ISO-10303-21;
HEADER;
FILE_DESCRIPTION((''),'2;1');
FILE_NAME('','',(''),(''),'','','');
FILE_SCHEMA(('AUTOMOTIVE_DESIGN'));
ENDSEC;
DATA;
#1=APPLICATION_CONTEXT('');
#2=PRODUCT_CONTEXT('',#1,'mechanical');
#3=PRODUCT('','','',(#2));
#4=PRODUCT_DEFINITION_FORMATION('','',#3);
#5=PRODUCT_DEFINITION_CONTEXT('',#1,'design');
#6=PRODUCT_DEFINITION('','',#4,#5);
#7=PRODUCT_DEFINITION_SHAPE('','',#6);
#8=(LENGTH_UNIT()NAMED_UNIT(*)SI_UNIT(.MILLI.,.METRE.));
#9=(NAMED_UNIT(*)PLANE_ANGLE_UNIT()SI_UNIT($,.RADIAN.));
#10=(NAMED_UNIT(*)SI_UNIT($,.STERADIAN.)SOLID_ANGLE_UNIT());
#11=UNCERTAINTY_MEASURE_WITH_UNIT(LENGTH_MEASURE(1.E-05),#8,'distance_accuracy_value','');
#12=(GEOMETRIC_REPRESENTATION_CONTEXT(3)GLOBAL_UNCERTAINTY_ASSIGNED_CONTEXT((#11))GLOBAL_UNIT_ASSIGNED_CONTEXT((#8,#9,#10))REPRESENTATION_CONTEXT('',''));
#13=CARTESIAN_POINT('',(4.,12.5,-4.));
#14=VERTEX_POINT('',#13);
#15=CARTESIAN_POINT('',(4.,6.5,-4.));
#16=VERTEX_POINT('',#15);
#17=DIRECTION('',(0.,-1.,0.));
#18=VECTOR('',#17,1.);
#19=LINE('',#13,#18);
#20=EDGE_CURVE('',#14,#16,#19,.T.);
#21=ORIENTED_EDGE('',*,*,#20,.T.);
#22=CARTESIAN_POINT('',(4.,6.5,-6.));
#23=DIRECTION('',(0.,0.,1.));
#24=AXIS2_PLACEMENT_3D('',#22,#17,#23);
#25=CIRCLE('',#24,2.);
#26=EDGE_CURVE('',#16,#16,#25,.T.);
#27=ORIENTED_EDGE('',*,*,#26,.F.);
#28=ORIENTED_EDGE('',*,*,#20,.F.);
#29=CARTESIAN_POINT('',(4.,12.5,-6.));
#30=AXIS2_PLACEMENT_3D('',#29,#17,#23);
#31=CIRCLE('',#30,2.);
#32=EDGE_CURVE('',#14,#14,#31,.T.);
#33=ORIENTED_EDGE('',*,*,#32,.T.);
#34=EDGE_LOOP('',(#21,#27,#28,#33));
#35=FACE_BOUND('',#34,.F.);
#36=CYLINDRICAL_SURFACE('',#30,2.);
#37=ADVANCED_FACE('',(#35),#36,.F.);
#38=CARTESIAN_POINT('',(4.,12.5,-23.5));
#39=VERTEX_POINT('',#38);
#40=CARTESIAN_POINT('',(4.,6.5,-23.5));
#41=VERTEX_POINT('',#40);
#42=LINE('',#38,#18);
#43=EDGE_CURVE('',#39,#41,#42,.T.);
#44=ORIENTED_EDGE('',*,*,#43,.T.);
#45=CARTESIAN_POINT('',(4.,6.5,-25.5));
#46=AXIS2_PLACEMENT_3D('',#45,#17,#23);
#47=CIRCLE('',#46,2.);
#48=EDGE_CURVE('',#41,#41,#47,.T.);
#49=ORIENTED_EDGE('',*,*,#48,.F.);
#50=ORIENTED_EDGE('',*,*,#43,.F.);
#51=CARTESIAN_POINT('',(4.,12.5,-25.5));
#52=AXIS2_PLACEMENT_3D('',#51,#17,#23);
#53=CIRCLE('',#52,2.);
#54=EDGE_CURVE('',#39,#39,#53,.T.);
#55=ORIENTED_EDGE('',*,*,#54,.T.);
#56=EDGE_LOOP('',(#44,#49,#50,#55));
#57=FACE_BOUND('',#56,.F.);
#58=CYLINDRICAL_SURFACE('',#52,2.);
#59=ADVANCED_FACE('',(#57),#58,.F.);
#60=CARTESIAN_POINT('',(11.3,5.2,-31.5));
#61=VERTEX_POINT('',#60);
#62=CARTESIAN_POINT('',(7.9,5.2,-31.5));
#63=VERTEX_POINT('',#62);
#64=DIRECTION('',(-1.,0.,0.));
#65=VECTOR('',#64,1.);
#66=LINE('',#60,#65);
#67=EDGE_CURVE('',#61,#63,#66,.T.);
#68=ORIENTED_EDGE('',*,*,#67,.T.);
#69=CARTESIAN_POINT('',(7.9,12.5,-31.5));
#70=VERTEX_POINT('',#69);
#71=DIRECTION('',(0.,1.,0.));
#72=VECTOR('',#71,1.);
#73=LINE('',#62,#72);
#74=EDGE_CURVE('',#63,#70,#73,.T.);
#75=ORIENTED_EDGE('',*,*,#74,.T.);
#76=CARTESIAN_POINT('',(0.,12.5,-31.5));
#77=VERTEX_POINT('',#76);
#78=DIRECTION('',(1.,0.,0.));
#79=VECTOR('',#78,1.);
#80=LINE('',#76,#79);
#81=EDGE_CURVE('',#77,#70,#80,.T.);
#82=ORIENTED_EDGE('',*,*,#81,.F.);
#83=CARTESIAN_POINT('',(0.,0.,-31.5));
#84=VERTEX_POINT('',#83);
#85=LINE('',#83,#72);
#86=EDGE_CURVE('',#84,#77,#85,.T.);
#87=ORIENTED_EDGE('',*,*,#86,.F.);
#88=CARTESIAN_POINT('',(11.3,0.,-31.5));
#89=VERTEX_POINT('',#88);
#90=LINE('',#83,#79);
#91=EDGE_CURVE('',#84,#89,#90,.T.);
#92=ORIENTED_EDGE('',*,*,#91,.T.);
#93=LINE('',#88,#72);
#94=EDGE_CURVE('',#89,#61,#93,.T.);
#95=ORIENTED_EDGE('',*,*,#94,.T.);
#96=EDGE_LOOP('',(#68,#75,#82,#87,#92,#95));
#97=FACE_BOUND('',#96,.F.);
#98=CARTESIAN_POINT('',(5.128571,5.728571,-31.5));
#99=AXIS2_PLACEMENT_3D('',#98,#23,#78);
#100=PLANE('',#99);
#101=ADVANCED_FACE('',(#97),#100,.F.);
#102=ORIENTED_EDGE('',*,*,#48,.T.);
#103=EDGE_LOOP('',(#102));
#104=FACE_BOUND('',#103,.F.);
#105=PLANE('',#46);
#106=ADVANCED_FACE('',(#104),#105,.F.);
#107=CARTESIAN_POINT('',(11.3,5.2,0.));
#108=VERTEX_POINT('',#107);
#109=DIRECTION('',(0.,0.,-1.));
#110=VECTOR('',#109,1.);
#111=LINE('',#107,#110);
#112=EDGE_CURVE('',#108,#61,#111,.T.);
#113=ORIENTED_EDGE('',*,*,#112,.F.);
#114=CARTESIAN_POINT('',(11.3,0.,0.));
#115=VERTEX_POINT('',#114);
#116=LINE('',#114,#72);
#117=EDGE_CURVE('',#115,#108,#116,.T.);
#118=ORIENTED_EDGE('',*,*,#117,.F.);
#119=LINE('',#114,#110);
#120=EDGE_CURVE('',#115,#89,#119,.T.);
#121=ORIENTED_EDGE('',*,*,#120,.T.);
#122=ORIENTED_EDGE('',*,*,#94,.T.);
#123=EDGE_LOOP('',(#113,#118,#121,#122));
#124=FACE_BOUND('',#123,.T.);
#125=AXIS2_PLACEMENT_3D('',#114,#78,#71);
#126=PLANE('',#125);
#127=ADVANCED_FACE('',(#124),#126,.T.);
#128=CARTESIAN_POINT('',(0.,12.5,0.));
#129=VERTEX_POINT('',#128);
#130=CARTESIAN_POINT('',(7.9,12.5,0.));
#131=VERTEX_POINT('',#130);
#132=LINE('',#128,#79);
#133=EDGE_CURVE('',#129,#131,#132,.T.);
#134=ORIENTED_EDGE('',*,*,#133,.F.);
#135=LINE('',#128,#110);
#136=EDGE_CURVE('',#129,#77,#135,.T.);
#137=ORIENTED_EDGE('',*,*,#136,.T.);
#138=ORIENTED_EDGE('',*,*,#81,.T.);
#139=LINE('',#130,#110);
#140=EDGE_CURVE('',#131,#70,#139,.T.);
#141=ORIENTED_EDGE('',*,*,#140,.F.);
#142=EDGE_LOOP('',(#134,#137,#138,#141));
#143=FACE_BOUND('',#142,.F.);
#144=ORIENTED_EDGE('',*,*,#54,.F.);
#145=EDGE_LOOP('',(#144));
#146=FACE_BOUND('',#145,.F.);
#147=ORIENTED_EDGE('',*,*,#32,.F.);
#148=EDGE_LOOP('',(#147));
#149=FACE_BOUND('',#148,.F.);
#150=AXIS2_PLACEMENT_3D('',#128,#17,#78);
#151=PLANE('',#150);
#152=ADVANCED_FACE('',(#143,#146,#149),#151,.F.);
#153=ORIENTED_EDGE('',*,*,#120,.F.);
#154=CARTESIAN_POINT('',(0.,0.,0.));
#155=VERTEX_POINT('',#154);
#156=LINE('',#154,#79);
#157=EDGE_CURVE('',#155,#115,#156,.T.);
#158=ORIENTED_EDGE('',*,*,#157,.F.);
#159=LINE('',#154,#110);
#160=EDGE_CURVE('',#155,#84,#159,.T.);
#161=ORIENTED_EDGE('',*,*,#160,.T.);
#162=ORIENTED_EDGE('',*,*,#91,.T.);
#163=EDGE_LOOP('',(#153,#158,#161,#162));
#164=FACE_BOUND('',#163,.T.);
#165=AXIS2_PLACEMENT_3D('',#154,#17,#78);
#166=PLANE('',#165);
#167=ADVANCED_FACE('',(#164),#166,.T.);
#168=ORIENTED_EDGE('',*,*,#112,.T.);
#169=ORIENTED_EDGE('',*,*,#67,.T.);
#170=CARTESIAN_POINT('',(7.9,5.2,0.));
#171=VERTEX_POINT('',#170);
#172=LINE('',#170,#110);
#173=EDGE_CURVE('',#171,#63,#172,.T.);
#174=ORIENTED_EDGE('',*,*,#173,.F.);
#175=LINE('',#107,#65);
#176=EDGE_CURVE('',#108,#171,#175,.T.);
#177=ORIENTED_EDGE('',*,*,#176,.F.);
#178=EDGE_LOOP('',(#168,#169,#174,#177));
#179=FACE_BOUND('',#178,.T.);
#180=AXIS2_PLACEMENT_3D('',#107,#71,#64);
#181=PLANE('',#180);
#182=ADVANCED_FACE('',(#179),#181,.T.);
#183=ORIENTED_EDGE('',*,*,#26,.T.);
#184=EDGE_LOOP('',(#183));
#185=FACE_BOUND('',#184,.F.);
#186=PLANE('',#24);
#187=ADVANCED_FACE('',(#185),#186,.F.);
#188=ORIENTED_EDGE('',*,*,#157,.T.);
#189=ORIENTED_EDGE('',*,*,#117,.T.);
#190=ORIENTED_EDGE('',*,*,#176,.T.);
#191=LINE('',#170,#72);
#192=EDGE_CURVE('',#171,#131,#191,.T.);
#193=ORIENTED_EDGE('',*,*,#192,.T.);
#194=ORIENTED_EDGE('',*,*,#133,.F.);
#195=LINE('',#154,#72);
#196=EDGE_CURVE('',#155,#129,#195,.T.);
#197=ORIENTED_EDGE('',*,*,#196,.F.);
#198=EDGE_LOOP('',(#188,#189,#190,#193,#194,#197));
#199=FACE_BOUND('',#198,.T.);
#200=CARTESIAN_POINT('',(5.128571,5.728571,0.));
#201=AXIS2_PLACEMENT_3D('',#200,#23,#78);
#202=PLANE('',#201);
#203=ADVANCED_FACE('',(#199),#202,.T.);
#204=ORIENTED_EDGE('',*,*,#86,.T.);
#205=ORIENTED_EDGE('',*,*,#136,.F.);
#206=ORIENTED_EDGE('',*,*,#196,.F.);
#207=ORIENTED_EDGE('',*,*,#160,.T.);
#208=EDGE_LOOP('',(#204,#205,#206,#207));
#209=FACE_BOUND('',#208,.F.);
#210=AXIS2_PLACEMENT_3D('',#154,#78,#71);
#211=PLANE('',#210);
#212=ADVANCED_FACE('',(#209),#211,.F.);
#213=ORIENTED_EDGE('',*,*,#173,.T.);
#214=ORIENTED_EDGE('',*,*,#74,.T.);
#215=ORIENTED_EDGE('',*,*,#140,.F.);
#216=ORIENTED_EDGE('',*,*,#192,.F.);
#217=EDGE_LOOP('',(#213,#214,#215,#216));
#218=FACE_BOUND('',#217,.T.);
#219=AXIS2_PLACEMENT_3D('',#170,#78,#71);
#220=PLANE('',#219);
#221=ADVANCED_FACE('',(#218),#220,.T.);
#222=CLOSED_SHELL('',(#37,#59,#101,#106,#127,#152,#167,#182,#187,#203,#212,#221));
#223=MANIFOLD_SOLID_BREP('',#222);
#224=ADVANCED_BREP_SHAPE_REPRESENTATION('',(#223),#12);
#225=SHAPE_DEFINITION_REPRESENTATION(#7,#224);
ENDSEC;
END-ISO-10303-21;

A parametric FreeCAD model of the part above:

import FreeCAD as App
import Part
import Sketcher

doc = App.newDocument("Part")
body = doc.addObject("PartDesign::Body", "Body")

# Sketch on XY plane
sketch1 = body.newObject("Sketcher::SketchObject", "Sketch")
sketch1.AttachmentSupport = (doc.getObject("XY_Plane"), [""])
sketch1.MapMode = "FlatFace"
sketch1.addGeometry(Part.LineSegment(App.Vector(11.3, 5.2, 0), App.Vector(7.9, 5.2, 0)), False)
sketch1.addGeometry(Part.LineSegment(App.Vector(7.9, 5.2, 0), App.Vector(7.9, 12.5, 0)), False)
sketch1.addGeometry(Part.LineSegment(App.Vector(7.9, 12.5, 0), App.Vector(0, 12.5, 0)), False)
sketch1.addGeometry(Part.LineSegment(App.Vector(0, 12.5, 0), App.Vector(0, 0, 0)), False)
sketch1.addGeometry(Part.LineSegment(App.Vector(0, 0, 0), App.Vector(11.3, 0, 0)), False)
sketch1.addGeometry(Part.LineSegment(App.Vector(11.3, 0, 0), App.Vector(11.3, 5.2, 0)), False)
sketch1.addConstraint(Sketcher.Constraint("Coincident", 0, 2, 1, 1))
sketch1.addConstraint(Sketcher.Constraint("Coincident", 1, 2, 2, 1))
sketch1.addConstraint(Sketcher.Constraint("Coincident", 2, 2, 3, 1))
sketch1.addConstraint(Sketcher.Constraint("Coincident", 3, 2, 4, 1))
sketch1.addConstraint(Sketcher.Constraint("Coincident", 4, 2, 5, 1))
sketch1.addConstraint(Sketcher.Constraint("Coincident", 5, 2, 0, 1))
sketch1.addConstraint(Sketcher.Constraint("Horizontal", 0))
sketch1.addConstraint(Sketcher.Constraint("Vertical", 1))
sketch1.addConstraint(Sketcher.Constraint("Horizontal", 2))
sketch1.addConstraint(Sketcher.Constraint("Vertical", 3))
sketch1.addConstraint(Sketcher.Constraint("Horizontal", 4))
sketch1.addConstraint(Sketcher.Constraint("Vertical", 5))
sketch1.addConstraint(Sketcher.Constraint("Coincident", 3, 2, -1, 1))
sketch1.addConstraint(Sketcher.Constraint("DistanceX", 0, 2, 0, 1, 3.4))
sketch1.addConstraint(Sketcher.Constraint("DistanceX", 2, 2, 2, 1, 7.9))
sketch1.addConstraint(Sketcher.Constraint("DistanceY", 1, 1, 1, 2, 7.3))
sketch1.addConstraint(Sketcher.Constraint("DistanceY", 3, 2, 3, 1, 12.5))
pad1 = body.newObject("PartDesign::Pad", "Pad")
pad1.Profile = sketch1
pad1.Length = 31.5
pad1.Reversed = True

# Sketch on XZ plane
sketch2 = body.newObject("Sketcher::SketchObject", "Sketch001")
sketch2.AttachmentSupport = (doc.getObject("XZ_Plane"), [""])
sketch2.MapMode = "FlatFace"
sketch2.AttachmentOffset = App.Placement(App.Vector(0, 0, -12.5), App.Rotation())
sketch2.addGeometry(Part.Circle(App.Vector(4, -25.5, 0), App.Vector(0, 0, 1), 2), False)
sketch2.addConstraint(Sketcher.Constraint("Diameter", 0, 4.0))
sketch2.addConstraint(Sketcher.Constraint("DistanceX", -1, 1, 0, 3, 4.0))
sketch2.addConstraint(Sketcher.Constraint("DistanceY", 0, 3, -1, 1, 25.5))
doc.recompute()
hole = body.newObject("PartDesign::Hole", "Hole")
hole.Profile = sketch2
hole.ThreadType = "None"
hole.Diameter = 4
hole.DepthType = "Dimension"
hole.Depth = 6
hole.DrillPoint = "Flat"
hole.Reversed = True

# Sketch on XZ plane
sketch3 = body.newObject("Sketcher::SketchObject", "Sketch002")
sketch3.AttachmentSupport = (doc.getObject("XZ_Plane"), [""])
sketch3.MapMode = "FlatFace"
sketch3.AttachmentOffset = App.Placement(App.Vector(0, 0, -12.5), App.Rotation())
sketch3.addGeometry(Part.Circle(App.Vector(4, -6, 0), App.Vector(0, 0, 1), 2), False)
sketch3.addConstraint(Sketcher.Constraint("Diameter", 0, 4.0))
sketch3.addConstraint(Sketcher.Constraint("DistanceX", -1, 1, 0, 3, 4.0))
sketch3.addConstraint(Sketcher.Constraint("DistanceY", 0, 3, -1, 1, 6.0))
doc.recompute()
hole2 = body.newObject("PartDesign::Hole", "Hole001")
hole2.Profile = sketch3
hole2.ThreadType = "None"
hole2.Diameter = 4
hole2.DepthType = "Dimension"
hole2.Depth = 6
hole2.DrillPoint = "Flat"
hole2.Reversed = True

doc.recompute()
